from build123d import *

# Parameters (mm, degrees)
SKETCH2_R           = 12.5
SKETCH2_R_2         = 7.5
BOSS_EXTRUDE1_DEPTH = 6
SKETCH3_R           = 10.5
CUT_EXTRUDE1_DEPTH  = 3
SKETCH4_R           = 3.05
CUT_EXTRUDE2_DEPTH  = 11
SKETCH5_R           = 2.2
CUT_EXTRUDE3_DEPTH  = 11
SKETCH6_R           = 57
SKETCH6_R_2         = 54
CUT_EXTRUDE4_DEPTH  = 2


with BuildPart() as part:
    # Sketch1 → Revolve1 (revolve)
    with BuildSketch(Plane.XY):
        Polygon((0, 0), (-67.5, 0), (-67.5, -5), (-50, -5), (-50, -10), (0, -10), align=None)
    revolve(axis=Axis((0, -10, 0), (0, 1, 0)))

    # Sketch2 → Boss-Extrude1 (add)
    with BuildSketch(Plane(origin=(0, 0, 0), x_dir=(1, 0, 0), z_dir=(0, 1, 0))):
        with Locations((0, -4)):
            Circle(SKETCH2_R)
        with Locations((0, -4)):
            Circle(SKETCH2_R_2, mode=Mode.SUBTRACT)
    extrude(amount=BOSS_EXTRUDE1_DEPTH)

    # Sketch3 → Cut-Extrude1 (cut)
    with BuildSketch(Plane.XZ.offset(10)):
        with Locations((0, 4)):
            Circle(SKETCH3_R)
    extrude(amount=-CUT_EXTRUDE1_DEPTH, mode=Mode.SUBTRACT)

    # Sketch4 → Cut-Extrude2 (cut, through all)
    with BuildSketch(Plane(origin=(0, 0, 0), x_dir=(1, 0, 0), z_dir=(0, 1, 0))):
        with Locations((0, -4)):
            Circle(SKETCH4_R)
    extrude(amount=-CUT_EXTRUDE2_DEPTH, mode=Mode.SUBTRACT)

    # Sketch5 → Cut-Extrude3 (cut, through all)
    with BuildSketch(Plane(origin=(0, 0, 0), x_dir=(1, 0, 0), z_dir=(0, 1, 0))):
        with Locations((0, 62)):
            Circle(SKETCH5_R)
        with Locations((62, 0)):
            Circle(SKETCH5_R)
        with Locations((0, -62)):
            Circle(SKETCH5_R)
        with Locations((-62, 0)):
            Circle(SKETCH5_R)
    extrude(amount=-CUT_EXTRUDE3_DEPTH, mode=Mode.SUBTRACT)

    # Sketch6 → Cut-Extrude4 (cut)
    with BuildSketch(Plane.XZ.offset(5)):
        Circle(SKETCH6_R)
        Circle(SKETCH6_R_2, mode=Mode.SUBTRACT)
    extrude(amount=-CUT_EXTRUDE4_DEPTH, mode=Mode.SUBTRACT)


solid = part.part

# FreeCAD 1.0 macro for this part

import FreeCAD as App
import Part
import Sketcher
Q = App.Units.Quantity

doc = App.newDocument("Part")
params = doc.addObject("Spreadsheet::Sheet", "Params")
for row, (alias, value) in enumerate([
    ("sketch1_width", "50 mm"),
    ("sketch1_height", "5 mm"),
    ("sketch1_width2", "67.5 mm"),
    ("revolution_angle", "360 deg"),
    ("sketch2_diameter", "25 mm"),
    ("sketch2_diameter2", "15 mm"),
    ("pad1_length", "6 mm"),
    ("sketch3_diameter", "21 mm"),
    ("pocket1_length", "3 mm"),
    ("sketch4_diameter", "6.1 mm"),
    ("sketch5_diameter", "4.4 mm"),
    ("sketch6_diameter", "114 mm"),
    ("sketch6_diameter2", "108 mm"),
    ("pocket4_length", "2 mm"),
], start=1):
    params.set(f"A{row}", alias)
    params.set(f"B{row}", "=" + value)
    params.setAlias(f"B{row}", alias)

body = doc.addObject("PartDesign::Body", "Body")

# Sketch on XY plane
sketch1 = body.newObject("Sketcher::SketchObject", "Sketch")
sketch1.AttachmentSupport = (doc.getObject("XY_Plane"), [""])
sketch1.MapMode = "FlatFace"
sketch1.addGeometry([
    Part.LineSegment(App.Vector(0, 0, 0), App.Vector(-68, 0, 0)),  # 0
    Part.LineSegment(App.Vector(-68, 0, 0), App.Vector(-68, -5, 0)),  # 1
    Part.LineSegment(App.Vector(-68, -5, 0), App.Vector(-50, -5, 0)),  # 2
    Part.LineSegment(App.Vector(-50, -5, 0), App.Vector(-50, -10, 0)),  # 3
    Part.LineSegment(App.Vector(-50, -10, 0), App.Vector(0, -10, 0)),  # 4
    Part.LineSegment(App.Vector(0, -10, 0), App.Vector(0, 0, 0)),  # 5
], False)
sketch1.addConstraint([
    Sketcher.Constraint("Coincident", 0, 2, 1, 1),
    Sketcher.Constraint("Coincident", 1, 2, 2, 1),
    Sketcher.Constraint("Coincident", 2, 2, 3, 1),
    Sketcher.Constraint("Coincident", 3, 2, 4, 1),
    Sketcher.Constraint("Coincident", 4, 2, 5, 1),
    Sketcher.Constraint("Coincident", 5, 2, 0, 1),
    Sketcher.Constraint("Horizontal", 0),
    Sketcher.Constraint("Vertical", 1),
    Sketcher.Constraint("Horizontal", 2),
    Sketcher.Constraint("Vertical", 3),
    Sketcher.Constraint("Horizontal", 4),
    Sketcher.Constraint("Vertical", 5),
    Sketcher.Constraint("Coincident", 5, 2, -1, 1),
    Sketcher.Constraint("Equal", 1, 3),
    Sketcher.Constraint("DistanceX", 4, 1, 4, 2, Q("50 mm")),
    Sketcher.Constraint("DistanceY", 1, 2, 1, 1, Q("5 mm")),
    Sketcher.Constraint("DistanceX", 0, 2, 0, 1, Q("67.5 mm")),
])
sketch1.setExpression("Constraints[14]", "Params.sketch1_width")
sketch1.setExpression("Constraints[15]", "Params.sketch1_height")
sketch1.setExpression("Constraints[16]", "Params.sketch1_width2")
revolution = body.newObject("PartDesign::Revolution", "Revolution")
revolution.Profile = sketch1
revolution.ReferenceAxis = (sketch1, ["V_Axis"])
revolution.setExpression("Angle", "Params.revolution_angle")

# Sketch on XZ plane
sketch2 = body.newObject("Sketcher::SketchObject", "Sketch001")
sketch2.AttachmentSupport = (doc.getObject("XZ_Plane"), [""])
sketch2.MapMode = "FlatFace"
sketch2.addGeometry([
    Part.Circle(App.Vector(0, 4, 0), App.Vector(0, 0, 1), 12),
    Part.Circle(App.Vector(0, 4, 0), App.Vector(0, 0, 1), 8),
], False)
sketch2.addConstraint([
    Sketcher.Constraint("Coincident", 1, 3, 0, 3),
    Sketcher.Constraint("PointOnObject", 0, 3, -2),
    Sketcher.Constraint("Diameter", 0, Q("25 mm")),
    Sketcher.Constraint("Diameter", 1, Q("15 mm")),
    Sketcher.Constraint("DistanceY", -1, 1, 0, 3, Q("4 mm")),
])
sketch2.setExpression("Constraints[2]", "Params.sketch2_diameter")
sketch2.setExpression("Constraints[3]", "Params.sketch2_diameter2")
pad1 = body.newObject("PartDesign::Pad", "Pad")
pad1.Profile = sketch2
pad1.setExpression("Length", "Params.pad1_length")
pad1.Reversed = True

# Sketch on XZ plane
sketch3 = body.newObject("Sketcher::SketchObject", "Sketch002")
sketch3.AttachmentSupport = (doc.getObject("XZ_Plane"), [""])
sketch3.MapMode = "FlatFace"
sketch3.AttachmentOffset = App.Placement(App.Vector(0, 0, 10), App.Rotation())
sketch3.addGeometry(Part.Circle(App.Vector(0, 4, 0), App.Vector(0, 0, 1), 10), False)
sketch3.addConstraint([
    Sketcher.Constraint("PointOnObject", 0, 3, -2),
    Sketcher.Constraint("Diameter", 0, Q("21 mm")),
    Sketcher.Constraint("DistanceY", -1, 1, 0, 3, Q("4 mm")),
])
sketch3.setExpression("Constraints[1]", "Params.sketch3_diameter")
pocket1 = body.newObject("PartDesign::Pocket", "Pocket")
pocket1.Profile = sketch3
pocket1.setExpression("Length", "Params.pocket1_length")

# Sketch on XZ plane
sketch4 = body.newObject("Sketcher::SketchObject", "Sketch003")
sketch4.AttachmentSupport = (doc.getObject("XZ_Plane"), [""])
sketch4.MapMode = "FlatFace"
sketch4.addGeometry(Part.Circle(App.Vector(0, 4, 0), App.Vector(0, 0, 1), 3), False)
sketch4.addConstraint([
    Sketcher.Constraint("PointOnObject", 0, 3, -2),
    Sketcher.Constraint("Diameter", 0, Q("6.1 mm")),
    Sketcher.Constraint("DistanceY", -1, 1, 0, 3, Q("4 mm")),
])
sketch4.setExpression("Constraints[1]", "Params.sketch4_diameter")
pocket2 = body.newObject("PartDesign::Pocket", "Pocket001")
pocket2.Profile = sketch4
pocket2.Type = "ThroughAll"
pocket2.Reversed = True

# Sketch on XZ plane
sketch5 = body.newObject("Sketcher::SketchObject", "Sketch004")
sketch5.AttachmentSupport = (doc.getObject("XZ_Plane"), [""])
sketch5.MapMode = "FlatFace"
sketch5.addGeometry([
    Part.Circle(App.Vector(0, -62, 0), App.Vector(0, 0, 1), 2.2),
    Part.Circle(App.Vector(62, 0, 0), App.Vector(0, 0, 1), 2.2),
    Part.Circle(App.Vector(0, 62, 0), App.Vector(0, 0, 1), 2.2),
    Part.Circle(App.Vector(-62, 0, 0), App.Vector(0, 0, 1), 2.2),
], False)
sketch5.addConstraint([
    Sketcher.Constraint("Equal", 0, 1),
    Sketcher.Constraint("Equal", 1, 2),
    Sketcher.Constraint("Equal", 2, 3),
    Sketcher.Constraint("Symmetric", 0, 3, 2, 3, -1, 1),
    Sketcher.Constraint("Symmetric", 1, 3, 3, 3, -1, 1),
    Sketcher.Constraint("PointOnObject", 0, 3, -2),
    Sketcher.Constraint("PointOnObject", 1, 3, -1),
    Sketcher.Constraint("Diameter", 0, Q("4.4 mm")),
    Sketcher.Constraint("DistanceY", 0, 3, -1, 1, Q("62 mm")),
    Sketcher.Constraint("DistanceX", -1, 1, 1, 3, Q("62 mm")),
])
sketch5.setExpression("Constraints[7]", "Params.sketch5_diameter")
pocket3 = body.newObject("PartDesign::Pocket", "Pocket002")
pocket3.Profile = sketch5
pocket3.Type = "ThroughAll"
pocket3.Reversed = True

# Sketch on XZ plane
sketch6 = body.newObject("Sketcher::SketchObject", "Sketch005")
sketch6.AttachmentSupport = (doc.getObject("XZ_Plane"), [""])
sketch6.MapMode = "FlatFace"
sketch6.AttachmentOffset = App.Placement(App.Vector(0, 0, 5), App.Rotation())
sketch6.addGeometry([
    Part.Circle(App.Vector(0, 0, 0), App.Vector(0, 0, 1), 57),
    Part.Circle(App.Vector(0, 0, 0), App.Vector(0, 0, 1), 54),
], False)
sketch6.addConstraint([
    Sketcher.Constraint("Coincident", 0, 3, -1, 1),
    Sketcher.Constraint("Coincident", 1, 3, -1, 1),
    Sketcher.Constraint("Diameter", 0, Q("114 mm")),
    Sketcher.Constraint("Diameter", 1, Q("108 mm")),
])
sketch6.setExpression("Constraints[2]", "Params.sketch6_diameter")
sketch6.setExpression("Constraints[3]", "Params.sketch6_diameter2")
pocket4 = body.newObject("PartDesign::Pocket", "Pocket003")
pocket4.Profile = sketch6
pocket4.setExpression("Length", "Params.pocket4_length")

doc.recompute()
